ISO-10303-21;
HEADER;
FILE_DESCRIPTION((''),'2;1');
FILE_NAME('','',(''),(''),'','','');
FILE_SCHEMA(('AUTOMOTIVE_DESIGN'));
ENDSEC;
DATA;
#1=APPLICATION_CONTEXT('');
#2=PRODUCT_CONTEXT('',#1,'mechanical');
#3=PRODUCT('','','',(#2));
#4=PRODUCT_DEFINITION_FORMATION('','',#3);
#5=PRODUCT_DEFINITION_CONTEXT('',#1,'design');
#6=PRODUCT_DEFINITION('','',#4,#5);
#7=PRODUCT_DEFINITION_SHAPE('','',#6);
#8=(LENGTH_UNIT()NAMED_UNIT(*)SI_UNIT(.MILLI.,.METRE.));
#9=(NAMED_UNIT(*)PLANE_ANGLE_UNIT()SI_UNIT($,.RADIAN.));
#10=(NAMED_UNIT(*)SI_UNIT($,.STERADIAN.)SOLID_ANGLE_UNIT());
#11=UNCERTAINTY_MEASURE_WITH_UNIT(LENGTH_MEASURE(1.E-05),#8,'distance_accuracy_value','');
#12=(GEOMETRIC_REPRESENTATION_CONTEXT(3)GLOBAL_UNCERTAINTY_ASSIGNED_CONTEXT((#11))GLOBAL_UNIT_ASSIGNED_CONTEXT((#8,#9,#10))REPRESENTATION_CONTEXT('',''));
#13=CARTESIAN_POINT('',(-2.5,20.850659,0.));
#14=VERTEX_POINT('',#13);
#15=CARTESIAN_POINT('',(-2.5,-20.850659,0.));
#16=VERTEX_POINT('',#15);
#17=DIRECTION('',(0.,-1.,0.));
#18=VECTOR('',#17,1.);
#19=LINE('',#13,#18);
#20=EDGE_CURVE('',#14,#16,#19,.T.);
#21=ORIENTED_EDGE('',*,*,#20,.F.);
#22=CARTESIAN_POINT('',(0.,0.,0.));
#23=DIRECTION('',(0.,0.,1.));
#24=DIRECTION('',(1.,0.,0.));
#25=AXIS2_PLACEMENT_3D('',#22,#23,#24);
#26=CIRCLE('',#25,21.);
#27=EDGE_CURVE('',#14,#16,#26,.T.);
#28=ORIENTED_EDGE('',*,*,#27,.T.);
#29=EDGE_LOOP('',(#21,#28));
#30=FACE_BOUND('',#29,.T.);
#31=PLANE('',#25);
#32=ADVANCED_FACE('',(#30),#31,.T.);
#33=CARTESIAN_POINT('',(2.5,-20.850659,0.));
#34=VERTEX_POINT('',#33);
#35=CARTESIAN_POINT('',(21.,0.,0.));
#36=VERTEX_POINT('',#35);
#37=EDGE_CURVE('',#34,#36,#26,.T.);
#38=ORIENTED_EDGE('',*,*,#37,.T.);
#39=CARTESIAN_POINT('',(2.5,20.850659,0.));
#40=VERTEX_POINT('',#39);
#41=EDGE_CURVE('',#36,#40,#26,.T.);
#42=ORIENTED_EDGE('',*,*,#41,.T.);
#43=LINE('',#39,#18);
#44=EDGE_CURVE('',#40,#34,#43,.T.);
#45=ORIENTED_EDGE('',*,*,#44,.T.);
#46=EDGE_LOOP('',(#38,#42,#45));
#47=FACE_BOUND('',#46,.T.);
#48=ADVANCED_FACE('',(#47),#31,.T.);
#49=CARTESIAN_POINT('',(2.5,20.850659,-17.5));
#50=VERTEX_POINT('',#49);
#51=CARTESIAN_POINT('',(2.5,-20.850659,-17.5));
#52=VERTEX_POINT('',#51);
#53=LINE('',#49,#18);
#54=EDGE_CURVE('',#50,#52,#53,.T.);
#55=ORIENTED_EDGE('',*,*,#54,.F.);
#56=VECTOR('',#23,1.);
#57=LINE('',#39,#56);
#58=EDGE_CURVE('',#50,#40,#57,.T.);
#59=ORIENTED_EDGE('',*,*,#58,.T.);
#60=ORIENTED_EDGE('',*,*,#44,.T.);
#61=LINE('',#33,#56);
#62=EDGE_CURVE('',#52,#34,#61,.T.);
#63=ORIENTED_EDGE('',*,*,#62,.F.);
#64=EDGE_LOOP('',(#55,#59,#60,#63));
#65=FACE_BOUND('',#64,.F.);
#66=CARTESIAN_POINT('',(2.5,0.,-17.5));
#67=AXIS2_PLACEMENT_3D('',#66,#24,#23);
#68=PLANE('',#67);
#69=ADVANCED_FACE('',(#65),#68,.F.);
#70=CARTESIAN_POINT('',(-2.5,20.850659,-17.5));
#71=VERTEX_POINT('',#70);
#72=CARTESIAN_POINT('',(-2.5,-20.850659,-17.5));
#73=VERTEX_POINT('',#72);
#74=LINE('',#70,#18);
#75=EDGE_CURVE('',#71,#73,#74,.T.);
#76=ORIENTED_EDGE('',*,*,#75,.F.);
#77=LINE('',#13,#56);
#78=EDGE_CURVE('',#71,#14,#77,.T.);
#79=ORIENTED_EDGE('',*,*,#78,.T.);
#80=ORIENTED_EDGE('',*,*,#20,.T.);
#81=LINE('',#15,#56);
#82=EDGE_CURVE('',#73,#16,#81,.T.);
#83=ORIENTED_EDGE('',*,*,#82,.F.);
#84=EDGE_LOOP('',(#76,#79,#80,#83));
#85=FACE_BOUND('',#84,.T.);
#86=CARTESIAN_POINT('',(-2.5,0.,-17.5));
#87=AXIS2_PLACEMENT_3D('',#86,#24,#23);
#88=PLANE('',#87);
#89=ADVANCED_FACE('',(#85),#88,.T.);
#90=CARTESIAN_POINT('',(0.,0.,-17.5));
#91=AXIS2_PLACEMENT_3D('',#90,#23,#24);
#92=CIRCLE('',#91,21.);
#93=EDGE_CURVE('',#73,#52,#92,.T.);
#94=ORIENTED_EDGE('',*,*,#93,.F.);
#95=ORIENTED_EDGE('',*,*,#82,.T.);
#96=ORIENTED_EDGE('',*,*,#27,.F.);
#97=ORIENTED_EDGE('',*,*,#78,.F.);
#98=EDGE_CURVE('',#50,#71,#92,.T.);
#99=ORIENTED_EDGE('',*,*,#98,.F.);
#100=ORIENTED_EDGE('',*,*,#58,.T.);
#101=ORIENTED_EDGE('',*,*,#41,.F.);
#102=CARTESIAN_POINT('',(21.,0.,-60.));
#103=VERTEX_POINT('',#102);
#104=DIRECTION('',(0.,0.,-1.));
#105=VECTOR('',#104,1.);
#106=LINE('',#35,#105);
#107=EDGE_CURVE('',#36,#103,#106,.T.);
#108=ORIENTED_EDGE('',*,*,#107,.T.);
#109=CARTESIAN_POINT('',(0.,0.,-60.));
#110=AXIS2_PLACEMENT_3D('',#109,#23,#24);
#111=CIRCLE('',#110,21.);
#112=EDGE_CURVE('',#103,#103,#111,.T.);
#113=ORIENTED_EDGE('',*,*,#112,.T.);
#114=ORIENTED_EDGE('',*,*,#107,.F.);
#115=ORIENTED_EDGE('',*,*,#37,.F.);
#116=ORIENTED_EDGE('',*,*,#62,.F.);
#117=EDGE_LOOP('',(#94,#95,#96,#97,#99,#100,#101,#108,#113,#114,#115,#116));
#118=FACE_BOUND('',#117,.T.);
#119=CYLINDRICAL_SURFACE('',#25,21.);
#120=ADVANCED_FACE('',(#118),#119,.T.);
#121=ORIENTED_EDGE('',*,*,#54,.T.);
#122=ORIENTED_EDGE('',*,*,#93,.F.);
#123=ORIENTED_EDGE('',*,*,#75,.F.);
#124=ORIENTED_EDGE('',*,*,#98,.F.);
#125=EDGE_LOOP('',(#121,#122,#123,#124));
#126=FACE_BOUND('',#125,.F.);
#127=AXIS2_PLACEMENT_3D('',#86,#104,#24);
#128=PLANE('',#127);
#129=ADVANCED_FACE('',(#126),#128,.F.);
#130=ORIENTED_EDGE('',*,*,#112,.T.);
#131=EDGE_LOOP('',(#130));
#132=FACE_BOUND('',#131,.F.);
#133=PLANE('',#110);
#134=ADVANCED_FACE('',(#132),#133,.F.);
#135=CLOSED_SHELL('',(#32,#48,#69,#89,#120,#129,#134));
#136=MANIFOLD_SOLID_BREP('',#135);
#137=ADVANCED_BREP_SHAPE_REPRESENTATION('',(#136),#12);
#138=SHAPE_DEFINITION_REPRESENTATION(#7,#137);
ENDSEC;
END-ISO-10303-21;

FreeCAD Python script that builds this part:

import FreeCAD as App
import Part
import Sketcher
from FreeCAD import Vector
Q = App.Units.Quantity


def add_polygon(sketch, points):
    """Adds a closed chain of lines whose ends are joined by coincident constraints."""
    first, n = sketch.GeometryCount, len(points)
    for a, b in zip(points, points[1:] + points[:1]):
        sketch.addGeometry(Part.LineSegment(App.Vector(*a, 0), App.Vector(*b, 0)), False)
    for i in range(n):
        sketch.addConstraint(Sketcher.Constraint("Coincident", first + i, 2, first + (i + 1) % n, 1))

doc = App.newDocument("Part")
body = doc.addObject("PartDesign::Body", "Body")

# Sketch on XY plane
sketch1 = body.newObject("Sketcher::SketchObject", "Sketch")
sketch1.AttachmentSupport = (doc.getObject("XY_Plane"), [""])
sketch1.MapMode = "FlatFace"
sketch1.addGeometry(Part.Circle(Vector(0, 0, 0), Vector(0, 0, 1), 21), False)
sketch1.addConstraint(Sketcher.Constraint("Coincident", 0, 3, -1, 1))
sketch1.addConstraint(Sketcher.Constraint("Diameter", 0, Q("42 mm")))
pad1 = body.newObject("PartDesign::Pad", "Pad")
pad1.Profile = sketch1
pad1.Length = 60
pad1.Reversed = True

# Sketch on XZ plane
sketch2 = body.newObject("Sketcher::SketchObject", "Sketch001")
sketch2.AttachmentSupport = (doc.getObject("XZ_Plane"), [""])
sketch2.MapMode = "FlatFace"
add_polygon(sketch2, [(-2, 18), (-2, -18), (2, -18), (2, 18)])  # lines 0-3
sketch2.addConstraint(Sketcher.Constraint("Vertical", 0))
sketch2.addConstraint(Sketcher.Constraint("Horizontal", 1))
sketch2.addConstraint(Sketcher.Constraint("Vertical", 2))
sketch2.addConstraint(Sketcher.Constraint("Horizontal", 3))
sketch2.addConstraint(Sketcher.Constraint("Symmetric", 0, 2, 2, 2, -1, 1))
sketch2.addConstraint(Sketcher.Constraint("DistanceX", 1, 1, 1, 2, Q("5 mm")))
sketch2.addConstraint(Sketcher.Constraint("DistanceY", 0, 2, 0, 1, Q("35 mm")))
pocket1 = body.newObject("PartDesign::Pocket", "Pocket")
pocket1.Profile = sketch2
pocket1.Type = "ThroughAll"
pocket1.Midplane = True

doc.recompute()
